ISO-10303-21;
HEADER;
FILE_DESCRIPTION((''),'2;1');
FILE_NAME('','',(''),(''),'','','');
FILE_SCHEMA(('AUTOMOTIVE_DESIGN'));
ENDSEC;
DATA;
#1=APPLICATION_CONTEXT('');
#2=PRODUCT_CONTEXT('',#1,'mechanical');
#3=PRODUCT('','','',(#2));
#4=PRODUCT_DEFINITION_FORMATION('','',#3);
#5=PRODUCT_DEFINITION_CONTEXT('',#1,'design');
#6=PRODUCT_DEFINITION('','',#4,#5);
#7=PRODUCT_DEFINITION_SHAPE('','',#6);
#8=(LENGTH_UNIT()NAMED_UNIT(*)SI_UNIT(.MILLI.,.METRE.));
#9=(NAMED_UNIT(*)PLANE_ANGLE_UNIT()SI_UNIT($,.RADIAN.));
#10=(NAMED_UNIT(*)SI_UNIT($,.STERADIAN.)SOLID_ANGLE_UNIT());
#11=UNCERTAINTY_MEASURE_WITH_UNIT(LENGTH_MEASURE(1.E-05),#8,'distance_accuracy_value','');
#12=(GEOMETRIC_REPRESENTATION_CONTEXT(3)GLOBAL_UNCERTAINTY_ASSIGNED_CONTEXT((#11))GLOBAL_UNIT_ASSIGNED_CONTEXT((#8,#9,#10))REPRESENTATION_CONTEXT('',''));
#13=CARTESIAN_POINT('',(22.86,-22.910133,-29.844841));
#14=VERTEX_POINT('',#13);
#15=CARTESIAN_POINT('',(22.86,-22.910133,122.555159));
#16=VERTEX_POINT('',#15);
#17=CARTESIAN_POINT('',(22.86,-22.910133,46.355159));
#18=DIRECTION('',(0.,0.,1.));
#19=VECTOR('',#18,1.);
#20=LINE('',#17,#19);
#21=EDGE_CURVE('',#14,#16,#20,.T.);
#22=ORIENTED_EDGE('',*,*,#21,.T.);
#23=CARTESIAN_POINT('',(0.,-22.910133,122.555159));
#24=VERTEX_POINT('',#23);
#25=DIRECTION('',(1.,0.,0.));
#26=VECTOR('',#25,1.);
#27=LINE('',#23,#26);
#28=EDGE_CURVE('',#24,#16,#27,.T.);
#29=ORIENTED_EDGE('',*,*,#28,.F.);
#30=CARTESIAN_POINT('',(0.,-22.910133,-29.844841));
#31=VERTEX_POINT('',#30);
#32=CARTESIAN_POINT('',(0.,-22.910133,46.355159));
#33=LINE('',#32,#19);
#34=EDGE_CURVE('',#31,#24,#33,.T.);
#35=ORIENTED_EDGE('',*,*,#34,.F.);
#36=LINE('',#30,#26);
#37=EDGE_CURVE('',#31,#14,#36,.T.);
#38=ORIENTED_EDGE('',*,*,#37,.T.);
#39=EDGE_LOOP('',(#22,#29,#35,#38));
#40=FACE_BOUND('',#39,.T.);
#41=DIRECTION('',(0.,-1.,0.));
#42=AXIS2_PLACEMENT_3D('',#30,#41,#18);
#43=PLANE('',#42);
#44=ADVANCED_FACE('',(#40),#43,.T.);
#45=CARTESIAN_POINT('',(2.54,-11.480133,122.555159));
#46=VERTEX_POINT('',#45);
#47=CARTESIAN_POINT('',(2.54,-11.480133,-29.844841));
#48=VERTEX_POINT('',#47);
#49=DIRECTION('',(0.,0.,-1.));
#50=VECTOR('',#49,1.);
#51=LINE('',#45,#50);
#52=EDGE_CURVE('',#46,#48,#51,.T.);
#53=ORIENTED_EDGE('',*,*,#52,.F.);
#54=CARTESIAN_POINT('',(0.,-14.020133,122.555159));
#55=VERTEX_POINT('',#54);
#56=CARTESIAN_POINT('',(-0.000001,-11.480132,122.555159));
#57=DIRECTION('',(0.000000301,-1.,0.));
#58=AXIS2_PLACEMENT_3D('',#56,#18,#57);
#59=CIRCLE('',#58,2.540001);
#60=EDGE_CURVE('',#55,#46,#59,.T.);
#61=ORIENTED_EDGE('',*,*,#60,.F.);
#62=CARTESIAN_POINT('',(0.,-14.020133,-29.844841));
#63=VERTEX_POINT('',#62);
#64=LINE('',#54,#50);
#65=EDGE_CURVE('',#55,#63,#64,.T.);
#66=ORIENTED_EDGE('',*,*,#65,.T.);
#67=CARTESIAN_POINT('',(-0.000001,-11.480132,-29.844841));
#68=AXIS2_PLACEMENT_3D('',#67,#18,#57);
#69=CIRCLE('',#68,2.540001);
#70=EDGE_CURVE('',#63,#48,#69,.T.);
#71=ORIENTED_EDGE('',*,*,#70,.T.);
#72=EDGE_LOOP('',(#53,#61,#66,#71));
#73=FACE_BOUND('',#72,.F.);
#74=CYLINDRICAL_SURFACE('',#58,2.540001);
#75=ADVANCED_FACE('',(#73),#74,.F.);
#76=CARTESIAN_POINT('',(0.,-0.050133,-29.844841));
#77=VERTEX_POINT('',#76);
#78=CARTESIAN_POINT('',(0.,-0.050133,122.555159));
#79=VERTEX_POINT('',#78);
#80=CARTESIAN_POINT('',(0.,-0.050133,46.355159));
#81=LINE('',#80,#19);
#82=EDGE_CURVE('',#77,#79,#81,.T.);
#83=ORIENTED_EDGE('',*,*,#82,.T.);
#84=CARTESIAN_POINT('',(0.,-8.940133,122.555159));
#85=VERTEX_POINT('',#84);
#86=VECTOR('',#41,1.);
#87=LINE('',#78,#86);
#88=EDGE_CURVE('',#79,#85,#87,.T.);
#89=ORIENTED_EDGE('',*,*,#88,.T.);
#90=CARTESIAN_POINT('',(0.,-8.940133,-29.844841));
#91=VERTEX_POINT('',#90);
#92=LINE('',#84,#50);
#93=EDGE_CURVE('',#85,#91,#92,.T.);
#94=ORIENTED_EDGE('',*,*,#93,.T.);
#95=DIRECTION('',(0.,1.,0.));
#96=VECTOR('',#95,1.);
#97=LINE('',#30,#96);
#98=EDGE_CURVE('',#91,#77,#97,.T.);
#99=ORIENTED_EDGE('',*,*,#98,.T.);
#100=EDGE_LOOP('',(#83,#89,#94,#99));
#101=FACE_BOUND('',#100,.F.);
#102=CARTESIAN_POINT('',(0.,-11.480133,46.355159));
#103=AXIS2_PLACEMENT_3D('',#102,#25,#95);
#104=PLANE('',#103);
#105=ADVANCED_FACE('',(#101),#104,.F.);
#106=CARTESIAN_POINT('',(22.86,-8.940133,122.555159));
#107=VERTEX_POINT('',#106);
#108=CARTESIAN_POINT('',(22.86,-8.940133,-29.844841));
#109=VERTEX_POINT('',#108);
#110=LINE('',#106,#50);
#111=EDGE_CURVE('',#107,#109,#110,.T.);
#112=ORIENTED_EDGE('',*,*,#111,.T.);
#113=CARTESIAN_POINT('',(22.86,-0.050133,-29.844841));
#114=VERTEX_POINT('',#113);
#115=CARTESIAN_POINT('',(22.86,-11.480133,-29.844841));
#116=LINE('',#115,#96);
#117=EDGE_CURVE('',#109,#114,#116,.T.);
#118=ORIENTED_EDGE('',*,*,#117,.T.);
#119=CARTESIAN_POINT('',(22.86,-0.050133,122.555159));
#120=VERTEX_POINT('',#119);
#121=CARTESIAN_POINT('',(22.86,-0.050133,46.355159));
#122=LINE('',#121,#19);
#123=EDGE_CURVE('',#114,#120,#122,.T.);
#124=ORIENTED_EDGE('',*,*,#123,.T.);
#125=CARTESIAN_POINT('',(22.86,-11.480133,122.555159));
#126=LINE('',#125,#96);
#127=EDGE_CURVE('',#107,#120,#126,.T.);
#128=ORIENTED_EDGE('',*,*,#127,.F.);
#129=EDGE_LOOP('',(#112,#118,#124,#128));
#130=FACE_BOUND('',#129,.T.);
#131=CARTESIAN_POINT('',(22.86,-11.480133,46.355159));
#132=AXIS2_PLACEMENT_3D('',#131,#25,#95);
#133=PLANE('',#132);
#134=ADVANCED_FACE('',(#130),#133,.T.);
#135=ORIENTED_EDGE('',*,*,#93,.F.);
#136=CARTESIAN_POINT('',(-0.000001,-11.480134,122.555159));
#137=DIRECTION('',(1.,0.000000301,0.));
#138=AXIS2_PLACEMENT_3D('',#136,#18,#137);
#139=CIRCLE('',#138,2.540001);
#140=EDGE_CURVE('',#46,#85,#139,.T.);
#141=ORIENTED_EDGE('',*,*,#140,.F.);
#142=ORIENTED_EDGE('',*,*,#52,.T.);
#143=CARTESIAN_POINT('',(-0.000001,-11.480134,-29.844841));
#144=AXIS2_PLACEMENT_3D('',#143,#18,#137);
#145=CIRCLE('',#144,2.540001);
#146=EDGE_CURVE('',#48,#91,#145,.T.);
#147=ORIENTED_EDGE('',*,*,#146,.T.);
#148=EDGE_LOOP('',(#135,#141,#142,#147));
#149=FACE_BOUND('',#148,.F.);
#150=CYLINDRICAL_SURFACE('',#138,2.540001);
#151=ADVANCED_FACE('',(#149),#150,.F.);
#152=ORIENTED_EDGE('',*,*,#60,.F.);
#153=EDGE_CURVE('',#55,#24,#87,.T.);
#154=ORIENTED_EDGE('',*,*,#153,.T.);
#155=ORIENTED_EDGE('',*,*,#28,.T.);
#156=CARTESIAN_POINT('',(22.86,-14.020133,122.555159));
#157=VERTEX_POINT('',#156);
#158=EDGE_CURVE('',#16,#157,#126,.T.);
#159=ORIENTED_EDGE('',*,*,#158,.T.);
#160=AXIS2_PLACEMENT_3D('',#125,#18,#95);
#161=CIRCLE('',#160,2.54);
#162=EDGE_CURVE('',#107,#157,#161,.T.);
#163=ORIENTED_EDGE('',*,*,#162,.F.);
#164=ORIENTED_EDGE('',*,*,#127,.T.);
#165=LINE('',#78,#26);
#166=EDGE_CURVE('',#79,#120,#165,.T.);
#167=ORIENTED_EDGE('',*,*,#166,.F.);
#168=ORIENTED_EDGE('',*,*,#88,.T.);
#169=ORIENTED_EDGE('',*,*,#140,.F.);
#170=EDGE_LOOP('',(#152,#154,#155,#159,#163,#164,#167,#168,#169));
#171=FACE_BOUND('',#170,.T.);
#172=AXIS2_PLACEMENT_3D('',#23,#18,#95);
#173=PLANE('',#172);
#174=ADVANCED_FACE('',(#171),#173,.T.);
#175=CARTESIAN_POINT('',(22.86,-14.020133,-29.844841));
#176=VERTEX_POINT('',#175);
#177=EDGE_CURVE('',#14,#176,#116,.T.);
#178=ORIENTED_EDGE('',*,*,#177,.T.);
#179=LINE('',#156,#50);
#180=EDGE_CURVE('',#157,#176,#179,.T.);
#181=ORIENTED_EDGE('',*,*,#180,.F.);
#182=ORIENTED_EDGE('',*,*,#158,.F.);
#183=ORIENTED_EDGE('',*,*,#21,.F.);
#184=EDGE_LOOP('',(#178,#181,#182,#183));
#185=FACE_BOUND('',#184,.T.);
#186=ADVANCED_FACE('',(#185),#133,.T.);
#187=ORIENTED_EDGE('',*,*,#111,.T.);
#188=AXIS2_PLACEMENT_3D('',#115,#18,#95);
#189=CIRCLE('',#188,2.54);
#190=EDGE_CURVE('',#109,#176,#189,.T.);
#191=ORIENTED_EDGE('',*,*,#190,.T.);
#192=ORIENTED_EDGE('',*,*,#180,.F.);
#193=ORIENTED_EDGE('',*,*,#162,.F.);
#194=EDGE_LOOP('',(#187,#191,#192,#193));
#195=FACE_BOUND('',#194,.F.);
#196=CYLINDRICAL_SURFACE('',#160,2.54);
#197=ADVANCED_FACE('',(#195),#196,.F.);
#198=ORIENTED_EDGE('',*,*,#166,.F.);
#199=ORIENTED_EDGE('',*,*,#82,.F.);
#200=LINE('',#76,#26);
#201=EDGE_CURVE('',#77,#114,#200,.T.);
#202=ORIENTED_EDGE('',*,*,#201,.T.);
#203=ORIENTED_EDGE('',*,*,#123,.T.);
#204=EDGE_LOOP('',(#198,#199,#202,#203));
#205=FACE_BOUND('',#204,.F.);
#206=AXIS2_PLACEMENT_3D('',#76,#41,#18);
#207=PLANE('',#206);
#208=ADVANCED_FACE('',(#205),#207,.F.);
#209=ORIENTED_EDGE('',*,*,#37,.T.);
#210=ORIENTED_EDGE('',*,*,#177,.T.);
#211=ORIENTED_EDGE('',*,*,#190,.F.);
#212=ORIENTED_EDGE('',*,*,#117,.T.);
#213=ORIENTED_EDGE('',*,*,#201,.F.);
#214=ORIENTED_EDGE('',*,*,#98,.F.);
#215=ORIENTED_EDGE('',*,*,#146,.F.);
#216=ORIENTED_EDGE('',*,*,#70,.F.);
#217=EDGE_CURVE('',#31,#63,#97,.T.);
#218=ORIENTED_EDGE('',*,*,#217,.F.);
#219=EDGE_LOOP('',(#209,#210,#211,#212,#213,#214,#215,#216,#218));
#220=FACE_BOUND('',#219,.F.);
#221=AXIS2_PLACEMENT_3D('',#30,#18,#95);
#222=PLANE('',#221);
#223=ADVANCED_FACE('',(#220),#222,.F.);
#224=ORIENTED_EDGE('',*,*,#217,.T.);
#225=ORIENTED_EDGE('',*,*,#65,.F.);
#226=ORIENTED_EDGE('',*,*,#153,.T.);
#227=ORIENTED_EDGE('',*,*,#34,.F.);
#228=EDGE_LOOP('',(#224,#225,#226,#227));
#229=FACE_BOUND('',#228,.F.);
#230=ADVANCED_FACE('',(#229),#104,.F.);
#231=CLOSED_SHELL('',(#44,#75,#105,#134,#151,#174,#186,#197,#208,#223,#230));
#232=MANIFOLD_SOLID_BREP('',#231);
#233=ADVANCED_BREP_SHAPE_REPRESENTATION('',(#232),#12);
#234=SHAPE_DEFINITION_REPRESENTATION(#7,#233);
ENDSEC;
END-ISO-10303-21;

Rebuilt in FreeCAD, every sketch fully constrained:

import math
import FreeCAD as App
import Part
import Sketcher
Q = App.Units.Quantity


def add_polygon(sketch, points):
    """Adds a closed chain of lines whose ends are joined by coincident constraints."""
    first, n = sketch.GeometryCount, len(points)
    for a, b in zip(points, points[1:] + points[:1]):
        sketch.addGeometry(Part.LineSegment(App.Vector(*a, 0), App.Vector(*b, 0)), False)
    for i in range(n):
        sketch.addConstraint(Sketcher.Constraint("Coincident", first + i, 2, first + (i + 1) % n, 1))

doc = App.newDocument("Part")
body = doc.addObject("PartDesign::Body", "Body")

# Sketch on YZ plane
sketch1 = body.newObject("Sketcher::SketchObject", "Sketch")
sketch1.AttachmentSupport = (doc.getObject("YZ_Plane"), [""])
sketch1.MapMode = "FlatFace"
add_polygon(sketch1, [(-23, 123), (-23, -30), (0, -30), (0, 123)])  # lines 0-3
sketch1.addConstraint([
    Sketcher.Constraint("Vertical", 0),
    Sketcher.Constraint("Horizontal", 1),
    Sketcher.Constraint("Vertical", 2),
    Sketcher.Constraint("Horizontal", 3),
    Sketcher.Constraint("DistanceY", 0, 2, 0, 1, Q("6 in")),
    Sketcher.Constraint("DistanceX", 1, 1, 1, 2, Q("0.9 in")),
    Sketcher.Constraint("DistanceY", 0, 2, -1, 1, 29.844841),
    Sketcher.Constraint("DistanceX", 0, 2, -1, 1, 22.910133),
])
pad1 = body.newObject("PartDesign::Pad", "Pad")
pad1.Profile = sketch1
pad1.Length = Q("0.9 in")

# Sketch on XY plane
sketch2 = body.newObject("Sketcher::SketchObject", "Sketch001")
sketch2.AttachmentSupport = (doc.getObject("XY_Plane"), [""])
sketch2.MapMode = "FlatFace"
sketch2.AttachmentOffset = App.Placement(App.Vector(0, 0, 122.555159), App.Rotation())
sketch2.addGeometry([
    Part.ArcOfCircle(Part.Circle(App.Vector(22.9, -11.5, 0), App.Vector(0, 0, 1), 2.5), math.radians(90), math.radians(270)),  # 0
    Part.ArcOfCircle(Part.Circle(App.Vector(22.9, -11.5, 0), App.Vector(0, 0, 1), 2.5), math.radians(-90), math.radians(0)),  # 1
    Part.ArcOfCircle(Part.Circle(App.Vector(22.9, -11.5, 0), App.Vector(0, 0, 1), 2.5), math.radians(0), math.radians(90)),  # 2
    Part.LineSegment(App.Vector(0, -14, 0), App.Vector(0, -8.9, 0)),  # 3
    Part.ArcOfCircle(Part.Circle(App.Vector(0, -11.5, 0), App.Vector(0, 0, 1), 2.5), math.radians(90), math.radians(270)),  # 4
], False)
sketch2.addConstraint([
    Sketcher.Constraint("Tangent", 0, 2, 1, 1),
    Sketcher.Constraint("Tangent", 1, 2, 2, 1),
    Sketcher.Constraint("Tangent", 2, 2, 0, 1),
    Sketcher.Constraint("Coincident", 3, 1, 4, 2),
    Sketcher.Constraint("Coincident", 4, 1, 3, 2),
    Sketcher.Constraint("Vertical", 3),
    Sketcher.Constraint("Equal", 2, 4),
    Sketcher.Constraint("PointOnObject", 4, 3, -2),
    Sketcher.Constraint("PointOnObject", 3, 1, -2),
    Sketcher.Constraint("Horizontal", 2, 3, 4, 3),
    Sketcher.Constraint("Horizontal", 4, 3, 1, 2),
    Sketcher.Constraint("Vertical", 2, 3, 0, 2),
    Sketcher.Constraint("Vertical", 0, 2, 2, 2),
    Sketcher.Constraint("Radius", 0, Q("0.1 in")),
    Sketcher.Constraint("DistanceX", -1, 1, 1, 2, Q("1 in")),
    Sketcher.Constraint("DistanceY", 0, 3, -1, 1, 11.480133),
])
pocket1 = body.newObject("PartDesign::Pocket", "Pocket")
pocket1.Profile = sketch2
pocket1.Length = Q("6 in")

# Sketch on XY plane
sketch3 = body.newObject("Sketcher::SketchObject", "Sketch002")
sketch3.AttachmentSupport = (doc.getObject("XY_Plane"), [""])
sketch3.MapMode = "FlatFace"
sketch3.AttachmentOffset = App.Placement(App.Vector(0, 0, 122.555159), App.Rotation())
sketch3.addGeometry([
    Part.ArcOfCircle(Part.Circle(App.Vector(0, -11.5, 0), App.Vector(0, 0, 1), 2.5), math.radians(-90), math.radians(0)),
    Part.ArcOfCircle(Part.Circle(App.Vector(0, -11.5, 0), App.Vector(0, 0, 1), 2.5), math.radians(0), math.radians(90)),
    Part.LineSegment(App.Vector(0, -8.9, 0), App.Vector(0, -14, 0)),
], False)
sketch3.addConstraint([
    Sketcher.Constraint("Tangent", 0, 2, 1, 1),
    Sketcher.Constraint("Coincident", 1, 2, 2, 1),
    Sketcher.Constraint("Coincident", 2, 2, 0, 1),
    Sketcher.Constraint("Vertical", 2),
    Sketcher.Constraint("Equal", 0, 1),
    Sketcher.Constraint("PointOnObject", 0, 3, -2),
    Sketcher.Constraint("PointOnObject", 1, 2, -2),
    Sketcher.Constraint("Horizontal", 1, 3, 0, 2),
    Sketcher.Constraint("Radius", 0, Q("0.1 in")),
    Sketcher.Constraint("DistanceY", 0, 3, -1, 1, 11.480132),
])
pocket2 = body.newObject("PartDesign::Pocket", "Pocket001")
pocket2.Profile = sketch3
pocket2.Length = Q("6 in")

doc.recompute()
